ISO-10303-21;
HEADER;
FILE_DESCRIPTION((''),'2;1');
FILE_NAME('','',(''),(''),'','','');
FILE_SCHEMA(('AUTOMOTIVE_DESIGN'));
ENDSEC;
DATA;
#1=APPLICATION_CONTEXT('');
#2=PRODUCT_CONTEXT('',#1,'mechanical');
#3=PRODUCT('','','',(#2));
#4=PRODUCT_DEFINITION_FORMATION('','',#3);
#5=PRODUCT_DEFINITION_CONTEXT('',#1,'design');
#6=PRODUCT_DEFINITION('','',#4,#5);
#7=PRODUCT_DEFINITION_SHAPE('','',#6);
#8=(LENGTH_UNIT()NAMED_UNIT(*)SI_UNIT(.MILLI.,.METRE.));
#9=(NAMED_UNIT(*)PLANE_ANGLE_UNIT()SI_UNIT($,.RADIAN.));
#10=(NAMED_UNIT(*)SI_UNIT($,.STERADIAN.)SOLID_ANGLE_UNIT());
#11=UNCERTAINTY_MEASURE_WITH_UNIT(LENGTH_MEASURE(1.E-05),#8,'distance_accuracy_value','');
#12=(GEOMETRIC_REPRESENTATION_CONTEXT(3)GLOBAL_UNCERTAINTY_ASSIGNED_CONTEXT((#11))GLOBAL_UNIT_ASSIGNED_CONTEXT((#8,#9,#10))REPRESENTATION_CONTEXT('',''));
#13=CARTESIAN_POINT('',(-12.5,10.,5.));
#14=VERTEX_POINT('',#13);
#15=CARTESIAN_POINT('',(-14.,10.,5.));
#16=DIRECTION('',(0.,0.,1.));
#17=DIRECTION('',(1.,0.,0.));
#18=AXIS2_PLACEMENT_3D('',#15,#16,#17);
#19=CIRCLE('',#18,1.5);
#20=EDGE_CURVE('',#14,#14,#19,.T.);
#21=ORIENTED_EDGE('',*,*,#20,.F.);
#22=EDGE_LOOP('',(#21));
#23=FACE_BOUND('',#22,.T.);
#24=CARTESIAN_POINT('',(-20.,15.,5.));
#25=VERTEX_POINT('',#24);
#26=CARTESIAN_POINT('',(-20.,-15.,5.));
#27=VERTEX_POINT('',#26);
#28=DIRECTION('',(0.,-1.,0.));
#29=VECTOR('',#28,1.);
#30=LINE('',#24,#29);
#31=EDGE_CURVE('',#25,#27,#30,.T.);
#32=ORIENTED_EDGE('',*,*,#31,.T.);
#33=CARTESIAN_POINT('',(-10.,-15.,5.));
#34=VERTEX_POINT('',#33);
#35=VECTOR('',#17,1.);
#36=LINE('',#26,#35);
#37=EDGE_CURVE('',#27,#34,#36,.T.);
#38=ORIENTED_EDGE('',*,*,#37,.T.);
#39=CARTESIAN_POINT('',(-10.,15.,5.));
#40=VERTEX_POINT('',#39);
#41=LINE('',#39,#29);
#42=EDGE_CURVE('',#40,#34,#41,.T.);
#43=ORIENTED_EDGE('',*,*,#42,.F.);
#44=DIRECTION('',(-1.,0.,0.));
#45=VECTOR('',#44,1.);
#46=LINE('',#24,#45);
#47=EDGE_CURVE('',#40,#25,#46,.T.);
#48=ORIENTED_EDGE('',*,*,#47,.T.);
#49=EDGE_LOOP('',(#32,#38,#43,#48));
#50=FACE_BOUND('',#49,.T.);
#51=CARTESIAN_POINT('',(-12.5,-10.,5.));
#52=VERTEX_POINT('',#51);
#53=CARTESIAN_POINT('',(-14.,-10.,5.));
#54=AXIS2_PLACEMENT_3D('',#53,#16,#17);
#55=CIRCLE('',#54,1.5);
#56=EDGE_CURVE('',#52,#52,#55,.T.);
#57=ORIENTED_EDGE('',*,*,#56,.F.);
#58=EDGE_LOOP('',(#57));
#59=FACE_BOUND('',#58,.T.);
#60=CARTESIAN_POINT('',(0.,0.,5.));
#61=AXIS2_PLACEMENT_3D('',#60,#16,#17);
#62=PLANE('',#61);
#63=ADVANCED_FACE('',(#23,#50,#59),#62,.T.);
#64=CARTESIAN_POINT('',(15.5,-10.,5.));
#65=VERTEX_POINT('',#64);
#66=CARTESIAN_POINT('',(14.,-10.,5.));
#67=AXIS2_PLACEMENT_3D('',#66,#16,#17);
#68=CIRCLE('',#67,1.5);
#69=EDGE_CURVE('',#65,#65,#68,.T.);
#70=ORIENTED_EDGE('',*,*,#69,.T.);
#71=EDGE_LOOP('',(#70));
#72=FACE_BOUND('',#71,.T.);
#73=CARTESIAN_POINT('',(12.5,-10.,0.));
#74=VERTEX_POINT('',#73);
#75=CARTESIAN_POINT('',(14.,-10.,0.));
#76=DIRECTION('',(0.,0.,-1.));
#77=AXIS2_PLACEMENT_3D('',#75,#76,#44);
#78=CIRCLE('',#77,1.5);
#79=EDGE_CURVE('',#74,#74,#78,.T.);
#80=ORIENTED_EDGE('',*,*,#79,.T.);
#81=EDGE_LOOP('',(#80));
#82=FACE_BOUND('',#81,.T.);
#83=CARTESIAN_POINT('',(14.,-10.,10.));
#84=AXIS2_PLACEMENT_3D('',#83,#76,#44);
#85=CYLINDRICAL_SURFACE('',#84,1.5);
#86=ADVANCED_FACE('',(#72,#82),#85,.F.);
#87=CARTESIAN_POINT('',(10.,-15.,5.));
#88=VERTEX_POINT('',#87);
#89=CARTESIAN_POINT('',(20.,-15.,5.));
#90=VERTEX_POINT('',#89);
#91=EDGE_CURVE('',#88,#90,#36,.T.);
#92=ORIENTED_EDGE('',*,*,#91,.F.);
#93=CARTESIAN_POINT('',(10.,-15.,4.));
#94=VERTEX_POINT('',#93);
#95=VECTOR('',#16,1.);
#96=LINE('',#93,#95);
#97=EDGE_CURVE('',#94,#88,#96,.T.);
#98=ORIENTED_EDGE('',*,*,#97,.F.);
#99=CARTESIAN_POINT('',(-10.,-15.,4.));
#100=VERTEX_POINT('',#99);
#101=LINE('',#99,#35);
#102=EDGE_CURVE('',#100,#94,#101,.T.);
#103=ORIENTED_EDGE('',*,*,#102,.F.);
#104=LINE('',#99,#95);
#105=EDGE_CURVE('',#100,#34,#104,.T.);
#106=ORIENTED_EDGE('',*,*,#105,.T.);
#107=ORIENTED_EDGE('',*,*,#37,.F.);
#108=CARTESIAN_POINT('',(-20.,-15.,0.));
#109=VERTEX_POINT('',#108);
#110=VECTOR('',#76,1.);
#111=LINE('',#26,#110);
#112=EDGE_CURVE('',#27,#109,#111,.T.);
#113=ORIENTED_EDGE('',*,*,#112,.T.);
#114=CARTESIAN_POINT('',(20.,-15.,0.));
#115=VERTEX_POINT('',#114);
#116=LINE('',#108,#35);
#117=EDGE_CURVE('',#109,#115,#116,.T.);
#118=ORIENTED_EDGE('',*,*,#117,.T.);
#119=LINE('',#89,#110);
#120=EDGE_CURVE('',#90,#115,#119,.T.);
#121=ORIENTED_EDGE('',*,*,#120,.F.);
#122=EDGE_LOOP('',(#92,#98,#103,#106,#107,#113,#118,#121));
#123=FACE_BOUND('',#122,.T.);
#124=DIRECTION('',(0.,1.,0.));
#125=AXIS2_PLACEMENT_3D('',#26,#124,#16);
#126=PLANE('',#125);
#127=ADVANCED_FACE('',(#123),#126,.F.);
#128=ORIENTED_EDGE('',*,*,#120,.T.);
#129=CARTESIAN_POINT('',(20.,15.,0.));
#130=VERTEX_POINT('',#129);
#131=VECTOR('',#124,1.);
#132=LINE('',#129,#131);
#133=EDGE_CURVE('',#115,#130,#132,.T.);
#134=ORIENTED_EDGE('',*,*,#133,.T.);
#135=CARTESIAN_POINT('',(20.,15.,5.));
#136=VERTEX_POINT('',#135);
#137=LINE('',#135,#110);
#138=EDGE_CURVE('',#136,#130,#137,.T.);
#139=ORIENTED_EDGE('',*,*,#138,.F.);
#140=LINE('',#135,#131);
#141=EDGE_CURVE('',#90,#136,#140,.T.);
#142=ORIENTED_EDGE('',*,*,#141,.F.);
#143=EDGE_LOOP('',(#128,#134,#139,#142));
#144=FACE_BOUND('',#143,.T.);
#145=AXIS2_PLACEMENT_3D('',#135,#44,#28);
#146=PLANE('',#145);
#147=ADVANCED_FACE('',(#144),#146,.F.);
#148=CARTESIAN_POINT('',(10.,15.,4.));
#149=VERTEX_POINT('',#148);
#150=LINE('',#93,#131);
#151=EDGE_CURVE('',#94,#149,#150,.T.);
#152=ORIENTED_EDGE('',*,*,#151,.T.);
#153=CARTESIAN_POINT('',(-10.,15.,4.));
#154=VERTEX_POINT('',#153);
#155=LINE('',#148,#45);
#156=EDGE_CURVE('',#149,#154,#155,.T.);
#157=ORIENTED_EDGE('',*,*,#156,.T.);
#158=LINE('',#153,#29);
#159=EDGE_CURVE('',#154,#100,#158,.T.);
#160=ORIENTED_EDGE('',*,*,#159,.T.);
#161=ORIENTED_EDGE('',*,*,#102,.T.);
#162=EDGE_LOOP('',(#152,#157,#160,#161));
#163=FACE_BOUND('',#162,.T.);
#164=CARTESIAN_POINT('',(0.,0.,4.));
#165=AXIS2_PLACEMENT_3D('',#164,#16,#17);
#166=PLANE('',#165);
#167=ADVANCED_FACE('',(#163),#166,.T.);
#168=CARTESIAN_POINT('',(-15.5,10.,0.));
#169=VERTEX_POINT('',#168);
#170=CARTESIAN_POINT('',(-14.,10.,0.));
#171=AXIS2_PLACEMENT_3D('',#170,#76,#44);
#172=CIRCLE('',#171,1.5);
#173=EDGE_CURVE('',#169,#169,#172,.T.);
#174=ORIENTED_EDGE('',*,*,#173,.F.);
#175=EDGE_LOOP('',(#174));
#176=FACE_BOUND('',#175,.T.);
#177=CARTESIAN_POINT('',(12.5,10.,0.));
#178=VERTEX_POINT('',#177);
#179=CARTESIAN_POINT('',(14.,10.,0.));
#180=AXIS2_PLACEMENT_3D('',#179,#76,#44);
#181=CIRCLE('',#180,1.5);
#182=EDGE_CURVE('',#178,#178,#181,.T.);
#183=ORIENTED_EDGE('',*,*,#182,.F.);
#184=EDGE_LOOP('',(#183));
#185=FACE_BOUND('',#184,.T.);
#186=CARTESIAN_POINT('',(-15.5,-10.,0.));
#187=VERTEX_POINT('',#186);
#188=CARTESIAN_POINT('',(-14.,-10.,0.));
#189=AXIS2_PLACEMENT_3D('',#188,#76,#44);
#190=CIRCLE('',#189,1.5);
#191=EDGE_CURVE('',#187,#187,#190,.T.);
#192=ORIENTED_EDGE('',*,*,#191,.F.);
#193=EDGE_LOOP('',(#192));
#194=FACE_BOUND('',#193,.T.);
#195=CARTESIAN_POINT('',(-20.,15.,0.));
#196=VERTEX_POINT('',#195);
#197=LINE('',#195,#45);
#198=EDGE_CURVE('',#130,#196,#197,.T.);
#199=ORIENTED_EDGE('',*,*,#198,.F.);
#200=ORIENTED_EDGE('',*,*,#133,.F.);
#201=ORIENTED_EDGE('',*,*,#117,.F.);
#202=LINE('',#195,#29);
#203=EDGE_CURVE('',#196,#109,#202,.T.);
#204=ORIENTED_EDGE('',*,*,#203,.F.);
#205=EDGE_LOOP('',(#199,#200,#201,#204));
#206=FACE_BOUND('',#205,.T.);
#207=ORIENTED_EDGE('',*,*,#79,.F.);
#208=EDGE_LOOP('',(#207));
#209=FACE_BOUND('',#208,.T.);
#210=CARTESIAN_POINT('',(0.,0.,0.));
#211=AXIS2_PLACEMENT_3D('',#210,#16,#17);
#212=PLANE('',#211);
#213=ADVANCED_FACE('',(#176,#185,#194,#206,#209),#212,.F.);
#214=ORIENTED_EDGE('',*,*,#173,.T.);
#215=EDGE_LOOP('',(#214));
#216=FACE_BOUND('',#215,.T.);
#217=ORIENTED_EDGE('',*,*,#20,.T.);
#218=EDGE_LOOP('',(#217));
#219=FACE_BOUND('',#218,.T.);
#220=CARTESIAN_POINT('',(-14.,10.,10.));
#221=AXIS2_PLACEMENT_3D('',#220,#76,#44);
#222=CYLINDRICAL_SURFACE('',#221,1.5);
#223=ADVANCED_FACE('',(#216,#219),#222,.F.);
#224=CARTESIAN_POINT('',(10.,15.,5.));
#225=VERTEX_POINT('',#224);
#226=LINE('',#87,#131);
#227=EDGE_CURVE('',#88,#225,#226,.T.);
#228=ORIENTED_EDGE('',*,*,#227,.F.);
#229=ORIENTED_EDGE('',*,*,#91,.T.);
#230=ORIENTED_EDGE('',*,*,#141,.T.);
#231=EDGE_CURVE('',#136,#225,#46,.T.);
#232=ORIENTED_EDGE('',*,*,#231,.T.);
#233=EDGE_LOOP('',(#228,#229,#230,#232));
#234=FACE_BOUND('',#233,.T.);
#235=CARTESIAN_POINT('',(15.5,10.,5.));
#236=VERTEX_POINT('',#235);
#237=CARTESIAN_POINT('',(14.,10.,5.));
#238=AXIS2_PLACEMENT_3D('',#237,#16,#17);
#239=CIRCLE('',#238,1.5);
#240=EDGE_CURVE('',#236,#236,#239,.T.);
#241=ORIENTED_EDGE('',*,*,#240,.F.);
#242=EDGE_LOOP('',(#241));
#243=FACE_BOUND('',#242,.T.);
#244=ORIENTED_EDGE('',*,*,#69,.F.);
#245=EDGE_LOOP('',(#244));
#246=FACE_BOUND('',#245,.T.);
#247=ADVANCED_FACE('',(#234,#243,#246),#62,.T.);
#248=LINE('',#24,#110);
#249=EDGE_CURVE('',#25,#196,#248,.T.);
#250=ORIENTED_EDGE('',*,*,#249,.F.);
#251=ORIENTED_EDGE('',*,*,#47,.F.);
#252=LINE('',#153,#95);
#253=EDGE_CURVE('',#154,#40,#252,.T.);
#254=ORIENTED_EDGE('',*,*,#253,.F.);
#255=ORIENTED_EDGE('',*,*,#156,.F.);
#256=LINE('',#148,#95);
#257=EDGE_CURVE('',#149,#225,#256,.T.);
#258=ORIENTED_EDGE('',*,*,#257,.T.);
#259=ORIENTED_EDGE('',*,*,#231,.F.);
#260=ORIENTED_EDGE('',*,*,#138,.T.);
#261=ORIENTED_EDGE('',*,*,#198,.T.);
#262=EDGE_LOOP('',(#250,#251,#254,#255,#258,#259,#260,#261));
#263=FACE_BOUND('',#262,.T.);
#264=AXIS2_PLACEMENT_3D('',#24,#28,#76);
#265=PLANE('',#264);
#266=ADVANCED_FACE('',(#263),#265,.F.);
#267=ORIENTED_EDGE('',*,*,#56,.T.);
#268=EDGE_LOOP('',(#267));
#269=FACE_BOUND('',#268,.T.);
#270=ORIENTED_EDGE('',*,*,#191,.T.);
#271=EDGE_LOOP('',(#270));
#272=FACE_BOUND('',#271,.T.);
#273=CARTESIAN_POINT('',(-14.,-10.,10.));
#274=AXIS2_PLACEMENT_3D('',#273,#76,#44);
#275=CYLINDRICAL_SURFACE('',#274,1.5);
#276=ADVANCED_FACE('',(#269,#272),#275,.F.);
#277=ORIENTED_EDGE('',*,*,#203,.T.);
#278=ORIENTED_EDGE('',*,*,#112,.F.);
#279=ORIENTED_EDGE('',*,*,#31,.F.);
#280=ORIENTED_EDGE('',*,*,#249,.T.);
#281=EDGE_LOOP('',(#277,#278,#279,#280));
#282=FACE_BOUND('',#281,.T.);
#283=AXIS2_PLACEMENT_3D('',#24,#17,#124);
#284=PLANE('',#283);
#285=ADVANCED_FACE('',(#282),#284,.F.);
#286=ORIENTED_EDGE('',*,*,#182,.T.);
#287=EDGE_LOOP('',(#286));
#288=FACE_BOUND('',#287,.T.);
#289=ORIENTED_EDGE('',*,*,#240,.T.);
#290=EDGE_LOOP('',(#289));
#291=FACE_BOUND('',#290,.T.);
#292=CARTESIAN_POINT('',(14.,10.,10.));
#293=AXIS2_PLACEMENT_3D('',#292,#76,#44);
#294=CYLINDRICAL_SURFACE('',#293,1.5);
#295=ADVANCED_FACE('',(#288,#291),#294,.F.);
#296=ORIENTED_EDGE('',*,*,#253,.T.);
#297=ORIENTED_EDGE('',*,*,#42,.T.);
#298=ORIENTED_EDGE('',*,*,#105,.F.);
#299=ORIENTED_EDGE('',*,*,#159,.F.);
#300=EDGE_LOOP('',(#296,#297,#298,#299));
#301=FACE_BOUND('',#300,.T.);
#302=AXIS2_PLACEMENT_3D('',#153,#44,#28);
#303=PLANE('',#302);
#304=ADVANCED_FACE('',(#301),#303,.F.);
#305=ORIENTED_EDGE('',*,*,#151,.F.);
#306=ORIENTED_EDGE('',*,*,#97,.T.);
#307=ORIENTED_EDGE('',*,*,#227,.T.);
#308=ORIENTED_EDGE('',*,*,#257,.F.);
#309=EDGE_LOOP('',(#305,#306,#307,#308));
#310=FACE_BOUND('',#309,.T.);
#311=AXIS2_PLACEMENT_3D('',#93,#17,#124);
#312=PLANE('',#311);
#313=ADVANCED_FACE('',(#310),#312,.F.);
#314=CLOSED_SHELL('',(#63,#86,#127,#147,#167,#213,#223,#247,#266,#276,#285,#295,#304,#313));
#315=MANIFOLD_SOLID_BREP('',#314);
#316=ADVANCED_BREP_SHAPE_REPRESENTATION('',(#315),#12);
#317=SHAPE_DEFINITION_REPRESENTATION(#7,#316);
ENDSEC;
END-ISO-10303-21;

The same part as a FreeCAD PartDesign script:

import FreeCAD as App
import Part
import Sketcher
from FreeCAD import Vector

doc = App.newDocument("Part")
body = doc.addObject("PartDesign::Body", "Body")

# Sketch on XY plane
sketch1 = body.newObject("Sketcher::SketchObject", "Sketch")
sketch1.AttachmentSupport = (doc.getObject("XY_Plane"), [""])
sketch1.MapMode = "FlatFace"
sketch1.addGeometry([
    Part.LineSegment(Vector(-20, 15, 0), Vector(-20, -15, 0)),
    Part.LineSegment(Vector(-20, -15, 0), Vector(20, -15, 0)),
    Part.LineSegment(Vector(20, -15, 0), Vector(20, 15, 0)),
    Part.LineSegment(Vector(20, 15, 0), Vector(-20, 15, 0)),
], False)
sketch1.addConstraint([
    Sketcher.Constraint("Coincident", 0, 2, 1, 1),
    Sketcher.Constraint("Coincident", 1, 2, 2, 1),
    Sketcher.Constraint("Coincident", 2, 2, 3, 1),
    Sketcher.Constraint("Coincident", 3, 2, 0, 1),
    Sketcher.Constraint("Vertical", 0),
    Sketcher.Constraint("Horizontal", 1),
    Sketcher.Constraint("Vertical", 2),
    Sketcher.Constraint("Horizontal", 3),
    Sketcher.Constraint("Symmetric", 0, 2, 2, 2, -1, 1),
    Sketcher.Constraint("DistanceX", 1, 1, 1, 2, 40.0),
    Sketcher.Constraint("DistanceY", 0, 2, 0, 1, 30.0),
])
pad1 = body.newObject("PartDesign::Pad", "Pad")
pad1.Profile = sketch1
pad1.Length = 5

# Sketch on XY plane
sketch2 = body.newObject("Sketcher::SketchObject", "Sketch001")
sketch2.AttachmentSupport = (doc.getObject("XY_Plane"), [""])
sketch2.MapMode = "FlatFace"
sketch2.addGeometry([
    Part.Circle(Vector(-14, 10, 0), Vector(0, 0, 1), 1.5),
    Part.Circle(Vector(14, 10, 0), Vector(0, 0, 1), 1.5),
    Part.Circle(Vector(14, -10, 0), Vector(0, 0, 1), 1.5),
    Part.Circle(Vector(-14, -10, 0), Vector(0, 0, 1), 1.5),
], False)
sketch2.addConstraint([
    Sketcher.Constraint("Equal", 0, 1),
    Sketcher.Constraint("Equal", 1, 2),
    Sketcher.Constraint("Equal", 2, 3),
    Sketcher.Constraint("Symmetric", 0, 3, 2, 3, -1, 1),
    Sketcher.Constraint("Symmetric", 1, 3, 3, 3, -1, 1),
    Sketcher.Constraint("Symmetric", 0, 3, 1, 3, -2),
    Sketcher.Constraint("Diameter", 0, 3.0),
    Sketcher.Constraint("DistanceX", 0, 3, -1, 1, 14.0),
    Sketcher.Constraint("DistanceY", -1, 1, 0, 3, 10.0),
])
pocket1 = body.newObject("PartDesign::Pocket", "Pocket")
pocket1.Profile = sketch2
pocket1.Length = 10
pocket1.Reversed = True

# Sketch on XY plane
sketch3 = body.newObject("Sketcher::SketchObject", "Sketch002")
sketch3.AttachmentSupport = (doc.getObject("XY_Plane"), [""])
sketch3.MapMode = "FlatFace"
sketch3.AttachmentOffset = App.Placement(Vector(0, 0, 5), App.Rotation())
sketch3.addGeometry([
    Part.LineSegment(Vector(-10, 15, 0), Vector(-10, -15, 0)),
    Part.LineSegment(Vector(-10, -15, 0), Vector(10, -15, 0)),
    Part.LineSegment(Vector(10, -15, 0), Vector(10, 15, 0)),
    Part.LineSegment(Vector(10, 15, 0), Vector(-10, 15, 0)),
], False)
sketch3.addConstraint([
    Sketcher.Constraint("Coincident", 0, 2, 1, 1),
    Sketcher.Constraint("Coincident", 1, 2, 2, 1),
    Sketcher.Constraint("Coincident", 2, 2, 3, 1),
    Sketcher.Constraint("Coincident", 3, 2, 0, 1),
    Sketcher.Constraint("Vertical", 0),
    Sketcher.Constraint("Horizontal", 1),
    Sketcher.Constraint("Vertical", 2),
    Sketcher.Constraint("Horizontal", 3),
    Sketcher.Constraint("Symmetric", 0, 2, 2, 2, -1, 1),
    Sketcher.Constraint("DistanceX", 1, 1, 1, 2, 20.0),
    Sketcher.Constraint("DistanceY", 0, 2, 0, 1, 30.0),
])
pocket2 = body.newObject("PartDesign::Pocket", "Pocket001")
pocket2.Profile = sketch3
pocket2.Length = 1

doc.recompute()
